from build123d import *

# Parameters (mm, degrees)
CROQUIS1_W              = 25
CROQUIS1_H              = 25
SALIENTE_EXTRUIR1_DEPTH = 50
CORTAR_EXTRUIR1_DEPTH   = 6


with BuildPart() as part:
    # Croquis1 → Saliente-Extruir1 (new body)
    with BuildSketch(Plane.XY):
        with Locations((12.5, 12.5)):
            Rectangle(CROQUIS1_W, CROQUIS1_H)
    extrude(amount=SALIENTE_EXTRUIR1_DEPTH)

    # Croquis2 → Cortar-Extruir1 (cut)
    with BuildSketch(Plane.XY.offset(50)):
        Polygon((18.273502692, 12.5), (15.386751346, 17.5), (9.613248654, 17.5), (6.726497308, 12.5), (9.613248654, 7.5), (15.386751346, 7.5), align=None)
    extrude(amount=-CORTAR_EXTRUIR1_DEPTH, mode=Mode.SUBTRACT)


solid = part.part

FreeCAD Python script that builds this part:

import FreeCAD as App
import Part
import Sketcher
Q = App.Units.Quantity

doc = App.newDocument("Part")
params = doc.addObject("Spreadsheet::Sheet", "Params")
for row, (alias, value) in enumerate([
    ("sketch1_width", "25 mm"),
    ("pad1_length", "50 mm"),
    ("pocket1_length", "6 mm"),
], start=1):
    params.set(f"A{row}", alias)
    params.set(f"B{row}", "=" + value)
    params.setAlias(f"B{row}", alias)

body = doc.addObject("PartDesign::Body", "Body")

# Sketch on XY plane
sketch1 = body.newObject("Sketcher::SketchObject", "Sketch")
sketch1.AttachmentSupport = (doc.getObject("XY_Plane"), [""])
sketch1.MapMode = "FlatFace"
sketch1.addGeometry(Part.LineSegment(App.Vector(0, 25, 0), App.Vector(0, 0, 0)), False)
sketch1.addGeometry(Part.LineSegment(App.Vector(0, 0, 0), App.Vector(25, 0, 0)), False)
sketch1.addGeometry(Part.LineSegment(App.Vector(25, 0, 0), App.Vector(25, 25, 0)), False)
sketch1.addGeometry(Part.LineSegment(App.Vector(25, 25, 0), App.Vector(0, 25, 0)), False)
sketch1.addConstraint(Sketcher.Constraint("Coincident", 0, 2, 1, 1))
sketch1.addConstraint(Sketcher.Constraint("Coincident", 1, 2, 2, 1))
sketch1.addConstraint(Sketcher.Constraint("Coincident", 2, 2, 3, 1))
sketch1.addConstraint(Sketcher.Constraint("Coincident", 3, 2, 0, 1))
sketch1.addConstraint(Sketcher.Constraint("Vertical", 0))
sketch1.addConstraint(Sketcher.Constraint("Horizontal", 1))
sketch1.addConstraint(Sketcher.Constraint("Vertical", 2))
sketch1.addConstraint(Sketcher.Constraint("Horizontal", 3))
sketch1.addConstraint(Sketcher.Constraint("Coincident", 0, 2, -1, 1))
sketch1.addConstraint(Sketcher.Constraint("Equal", 3, 0))
sketch1.addConstraint(Sketcher.Constraint("DistanceX", 1, 1, 1, 2, Q("25 mm")))
sketch1.setExpression("Constraints[10]", "Params.sketch1_width")
pad1 = body.newObject("PartDesign::Pad", "Pad")
pad1.Profile = sketch1
pad1.setExpression("Length", "Params.pad1_length")

# Sketch on XY plane
sketch2 = body.newObject("Sketcher::SketchObject", "Sketch001")
sketch2.AttachmentSupport = (doc.getObject("XY_Plane"), [""])
sketch2.MapMode = "FlatFace"
sketch2.AttachmentOffset = App.Placement(App.Vector(0, 0, 50), App.Rotation())
sketch2.addGeometry(Part.LineSegment(App.Vector(18, 12, 0), App.Vector(15, 18, 0)), False)
sketch2.addGeometry(Part.LineSegment(App.Vector(15, 18, 0), App.Vector(10, 18, 0)), False)
sketch2.addGeometry(Part.LineSegment(App.Vector(10, 18, 0), App.Vector(7, 12, 0)), False)
sketch2.addGeometry(Part.LineSegment(App.Vector(7, 12, 0), App.Vector(10, 8, 0)), False)
sketch2.addGeometry(Part.LineSegment(App.Vector(10, 8, 0), App.Vector(15, 8, 0)), False)
sketch2.addGeometry(Part.LineSegment(App.Vector(15, 8, 0), App.Vector(18, 12, 0)), False)
sketch2.addConstraint(Sketcher.Constraint("Coincident", 0, 2, 1, 1))
sketch2.addConstraint(Sketcher.Constraint("Coincident", 1, 2, 2, 1))
sketch2.addConstraint(Sketcher.Constraint("Coincident", 2, 2, 3, 1))
sketch2.addConstraint(Sketcher.Constraint("Coincident", 3, 2, 4, 1))
sketch2.addConstraint(Sketcher.Constraint("Coincident", 4, 2, 5, 1))
sketch2.addConstraint(Sketcher.Constraint("Coincident", 5, 2, 0, 1))
sketch2.addConstraint(Sketcher.Constraint("Horizontal", 1))
sketch2.addConstraint(Sketcher.Constraint("Horizontal", 4))
sketch2.addConstraint(Sketcher.Constraint("Parallel", 0, 3))
sketch2.addConstraint(Sketcher.Constraint("Parallel", 2, 5))
sketch2.addConstraint(Sketcher.Constraint("Horizontal", 2, 2, 5, 2))
sketch2.addConstraint(Sketcher.Constraint("Vertical", 1, 2, 3, 2))
sketch2.addConstraint(Sketcher.Constraint("Vertical", 0, 2, 4, 2))
sketch2.addConstraint(Sketcher.Constraint("Angle", 0, Q("120 deg")))
sketch2.addConstraint(Sketcher.Constraint("DistanceY", 2, 2, 1, 2, Q("5 mm")))
sketch2.addConstraint(Sketcher.Constraint("DistanceY", -1, 1, 0, 2, Q("17.5 mm")))
sketch2.addConstraint(Sketcher.Constraint("DistanceX", 1, 2, 1, 1, Q("5.773503 mm")))
sketch2.addConstraint(Sketcher.Constraint("DistanceX", -1, 1, 0, 2, Q("15.386751 mm")))
pocket1 = body.newObject("PartDesign::Pocket", "Pocket")
pocket1.Profile = sketch2
pocket1.setExpression("Length", "Params.pocket1_length")

doc.recompute()
